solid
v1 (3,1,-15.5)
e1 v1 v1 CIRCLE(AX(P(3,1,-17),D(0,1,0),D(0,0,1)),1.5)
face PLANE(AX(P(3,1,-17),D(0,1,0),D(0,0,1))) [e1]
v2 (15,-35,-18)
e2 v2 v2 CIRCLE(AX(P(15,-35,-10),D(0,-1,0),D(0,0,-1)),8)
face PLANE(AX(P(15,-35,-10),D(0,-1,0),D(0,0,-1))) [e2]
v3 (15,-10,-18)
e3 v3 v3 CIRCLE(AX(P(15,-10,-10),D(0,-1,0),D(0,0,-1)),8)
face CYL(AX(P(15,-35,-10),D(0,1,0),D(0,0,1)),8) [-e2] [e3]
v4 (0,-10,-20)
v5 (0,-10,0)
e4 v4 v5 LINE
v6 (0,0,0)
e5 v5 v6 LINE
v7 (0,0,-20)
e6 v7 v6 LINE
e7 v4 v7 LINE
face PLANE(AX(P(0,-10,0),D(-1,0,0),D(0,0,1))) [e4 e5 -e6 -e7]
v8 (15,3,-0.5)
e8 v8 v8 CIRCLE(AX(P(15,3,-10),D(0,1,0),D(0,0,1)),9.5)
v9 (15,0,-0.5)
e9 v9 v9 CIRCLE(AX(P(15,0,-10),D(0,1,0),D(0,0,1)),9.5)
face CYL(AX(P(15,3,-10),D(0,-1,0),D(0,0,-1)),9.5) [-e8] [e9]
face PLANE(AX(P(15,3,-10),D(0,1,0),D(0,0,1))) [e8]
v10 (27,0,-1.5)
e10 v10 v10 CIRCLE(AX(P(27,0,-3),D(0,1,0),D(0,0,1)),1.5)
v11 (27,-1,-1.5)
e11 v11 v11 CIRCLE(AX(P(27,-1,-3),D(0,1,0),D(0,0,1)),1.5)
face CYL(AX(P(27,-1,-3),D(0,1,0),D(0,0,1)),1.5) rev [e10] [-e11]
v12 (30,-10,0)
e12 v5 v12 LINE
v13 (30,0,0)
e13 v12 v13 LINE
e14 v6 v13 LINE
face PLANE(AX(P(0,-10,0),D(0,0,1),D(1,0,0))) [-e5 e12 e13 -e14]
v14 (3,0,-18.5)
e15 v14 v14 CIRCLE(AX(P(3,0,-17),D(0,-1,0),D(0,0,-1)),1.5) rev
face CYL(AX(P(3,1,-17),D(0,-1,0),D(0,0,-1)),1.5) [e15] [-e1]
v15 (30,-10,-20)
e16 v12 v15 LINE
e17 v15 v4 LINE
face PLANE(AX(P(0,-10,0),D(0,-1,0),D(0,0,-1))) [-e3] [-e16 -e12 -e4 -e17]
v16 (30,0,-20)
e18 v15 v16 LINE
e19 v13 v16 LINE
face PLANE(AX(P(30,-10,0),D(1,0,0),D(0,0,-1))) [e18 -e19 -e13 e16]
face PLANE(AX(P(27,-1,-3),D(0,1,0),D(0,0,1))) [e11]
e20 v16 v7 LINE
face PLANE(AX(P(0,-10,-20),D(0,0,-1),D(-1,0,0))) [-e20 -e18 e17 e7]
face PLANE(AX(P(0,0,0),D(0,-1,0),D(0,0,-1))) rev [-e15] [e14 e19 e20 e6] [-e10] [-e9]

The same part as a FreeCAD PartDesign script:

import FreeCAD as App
import Part
import Sketcher
from FreeCAD import Vector

doc = App.newDocument("Part")
body = doc.addObject("PartDesign::Body", "Body")

sketch1 = doc.addObject("Sketcher::SketchObject", "Sketch")
body.addObject(sketch1)
sketch1.AttachmentSupport = (doc.XZ_Plane, [""])
sketch1.MapMode = "FlatFace"
sketch1.addGeometry([
    Part.LineSegment(Vector(0, -20, 0), Vector(0, 0, 0)),
    Part.LineSegment(Vector(0, 0, 0), Vector(30, 0, 0)),
    Part.LineSegment(Vector(30, 0, 0), Vector(30, -20, 0)),
    Part.LineSegment(Vector(30, -20, 0), Vector(0, -20, 0)),
], False)
sketch1.addConstraint([
    Sketcher.Constraint("Coincident", 0, 2, 1, 1),
    Sketcher.Constraint("Coincident", 1, 2, 2, 1),
    Sketcher.Constraint("Coincident", 2, 2, 3, 1),
    Sketcher.Constraint("Coincident", 3, 2, 0, 1),
    Sketcher.Constraint("Vertical", 0),
    Sketcher.Constraint("Horizontal", 1),
    Sketcher.Constraint("Vertical", 2),
    Sketcher.Constraint("Horizontal", 3),
    Sketcher.Constraint("Coincident", 0, 2, -1, 1),
    Sketcher.Constraint("DistanceX", 1, 1, 1, 2, 30.0),
    Sketcher.Constraint("DistanceY", 0, 1, 0, 2, 20.0),
])
pad1 = doc.addObject("PartDesign::Pad", "Pad")
body.addObject(pad1)
pad1.Profile = sketch1
pad1.Length = 10

sketch2 = doc.addObject("Sketcher::SketchObject", "Sketch001")
body.addObject(sketch2)
sketch2.AttachmentSupport = (doc.XZ_Plane, [""])
sketch2.MapMode = "FlatFace"
sketch2.AttachmentOffset = App.Placement(Vector(0, 0, 10), App.Rotation())
sketch2.addGeometry(Part.Circle(Vector(15, -10, 0), Vector(0, 0, 1), 8), False)
sketch2.addConstraint([
    Sketcher.Constraint("Diameter", 0, 16.0),
    Sketcher.Constraint("DistanceX", -1, 1, 0, 3, 15.0),
    Sketcher.Constraint("DistanceY", 0, 3, -1, 1, 10.0),
])
pad2 = doc.addObject("PartDesign::Pad", "Pad001")
body.addObject(pad2)
pad2.Profile = sketch2
pad2.Length = 25

sketch3 = doc.addObject("Sketcher::SketchObject", "Sketch002")
body.addObject(sketch3)
sketch3.AttachmentSupport = (doc.XZ_Plane, [""])
sketch3.MapMode = "FlatFace"
sketch3.addGeometry(Part.Circle(Vector(15, -10, 0), Vector(0, 0, 1), 10), False)
sketch3.addConstraint([
    Sketcher.Constraint("Diameter", 0, 19.0),
    Sketcher.Constraint("DistanceX", -1, 1, 0, 3, 15.0),
    Sketcher.Constraint("DistanceY", 0, 3, -1, 1, 10.0),
])
pad3 = doc.addObject("PartDesign::Pad", "Pad002")
body.addObject(pad3)
pad3.Profile = sketch3
pad3.Length = 3
pad3.Reversed = True

sketch4 = doc.addObject("Sketcher::SketchObject", "Sketch003")
body.addObject(sketch4)
sketch4.AttachmentSupport = (doc.XZ_Plane, [""])
sketch4.MapMode = "FlatFace"
sketch4.addGeometry(Part.Circle(Vector(3, -17, 0), Vector(0, 0, 1), 1.5), False)
sketch4.addConstraint([
    Sketcher.Constraint("Diameter", 0, 3.0),
    Sketcher.Constraint("DistanceX", -1, 1, 0, 3, 3.0),
    Sketcher.Constraint("DistanceY", 0, 3, -1, 1, 17.0),
])
pad4 = doc.addObject("PartDesign::Pad", "Pad003")
body.addObject(pad4)
pad4.Profile = sketch4
pad4.Length = 1
pad4.Reversed = True

sketch5 = doc.addObject("Sketcher::SketchObject", "Sketch004")
body.addObject(sketch5)
sketch5.AttachmentSupport = (doc.XZ_Plane, [""])
sketch5.MapMode = "FlatFace"
sketch5.addGeometry(Part.Circle(Vector(27, -3, 0), Vector(0, 0, 1), 1.5), False)
sketch5.addConstraint([
    Sketcher.Constraint("Diameter", 0, 3.0),
    Sketcher.Constraint("DistanceX", -1, 1, 0, 3, 27.0),
    Sketcher.Constraint("DistanceY", 0, 3, -1, 1, 3.0),
])
pocket1 = doc.addObject("PartDesign::Pocket", "Pocket")
body.addObject(pocket1)
pocket1.Profile = sketch5
pocket1.Length = 1
pocket1.Reversed = True

doc.recompute()
